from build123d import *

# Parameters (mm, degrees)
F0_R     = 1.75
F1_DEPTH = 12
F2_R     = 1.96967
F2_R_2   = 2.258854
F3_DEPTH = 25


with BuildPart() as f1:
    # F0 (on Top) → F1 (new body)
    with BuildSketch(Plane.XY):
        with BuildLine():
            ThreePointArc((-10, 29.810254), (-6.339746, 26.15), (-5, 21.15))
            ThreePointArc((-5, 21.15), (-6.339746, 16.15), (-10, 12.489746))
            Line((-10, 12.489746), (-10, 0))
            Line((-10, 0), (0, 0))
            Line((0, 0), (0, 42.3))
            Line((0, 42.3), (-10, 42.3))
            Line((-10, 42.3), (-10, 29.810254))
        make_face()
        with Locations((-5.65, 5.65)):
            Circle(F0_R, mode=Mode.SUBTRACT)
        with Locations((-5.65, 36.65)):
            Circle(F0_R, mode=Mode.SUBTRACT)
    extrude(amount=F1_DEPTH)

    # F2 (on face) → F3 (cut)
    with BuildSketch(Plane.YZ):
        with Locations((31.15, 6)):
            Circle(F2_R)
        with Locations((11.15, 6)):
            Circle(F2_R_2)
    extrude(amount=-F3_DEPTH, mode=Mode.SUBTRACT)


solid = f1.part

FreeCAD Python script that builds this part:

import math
import FreeCAD as App
import Part
import Sketcher
Q = App.Units.Quantity

doc = App.newDocument("Part")
body = doc.addObject("PartDesign::Body", "Body")

# Sketch on XY plane
sketch1 = body.newObject("Sketcher::SketchObject", "Sketch")
sketch1.AttachmentSupport = (doc.getObject("XY_Plane"), [""])
sketch1.MapMode = "FlatFace"
sketch1.addGeometry([
    Part.ArcOfCircle(Part.Circle(App.Vector(-15, 21.1, 0), App.Vector(0, 0, 1), 10), math.radians(0), math.radians(60)),  # 0
    Part.ArcOfCircle(Part.Circle(App.Vector(-15, 21.2, 0), App.Vector(0, 0, 1), 10), math.radians(-60), math.radians(0)),  # 1
    Part.LineSegment(App.Vector(-10, 12.5, 0), App.Vector(-10, 0, 0)),  # 2
    Part.LineSegment(App.Vector(-10, 0, 0), App.Vector(0, 0, 0)),  # 3
    Part.LineSegment(App.Vector(0, 0, 0), App.Vector(0, 42.3, 0)),  # 4
    Part.LineSegment(App.Vector(0, 42.3, 0), App.Vector(-10, 42.3, 0)),  # 5
    Part.LineSegment(App.Vector(-10, 42.3, 0), App.Vector(-10, 29.8, 0)),  # 6
    Part.Circle(App.Vector(-5.7, 5.7, 0), App.Vector(0, 0, 1), 1.8),  # 7
    Part.Circle(App.Vector(-5.7, 36.6, 0), App.Vector(0, 0, 1), 1.8),  # 8
], False)
sketch1.addConstraint([
    Sketcher.Constraint("Tangent", 0, 1, 1, 2),
    Sketcher.Constraint("Coincident", 1, 1, 2, 1),
    Sketcher.Constraint("Coincident", 2, 2, 3, 1),
    Sketcher.Constraint("Coincident", 3, 2, 4, 1),
    Sketcher.Constraint("Coincident", 4, 2, 5, 1),
    Sketcher.Constraint("Coincident", 5, 2, 6, 1),
    Sketcher.Constraint("Coincident", 6, 2, 0, 2),
    Sketcher.Constraint("Vertical", 2),
    Sketcher.Constraint("Horizontal", 3),
    Sketcher.Constraint("Vertical", 4),
    Sketcher.Constraint("Horizontal", 5),
    Sketcher.Constraint("Vertical", 6),
    Sketcher.Constraint("Coincident", 3, 2, -1, 1),
    Sketcher.Constraint("Equal", 0, 1),
    Sketcher.Constraint("Equal", 7, 8),
    Sketcher.Constraint("Horizontal", 1, 3, 0, 1),
    Sketcher.Constraint("Vertical", 7, 3, 8, 3),
    Sketcher.Constraint("Vertical", 2, 2, 5, 2),
    Sketcher.Constraint("Equal", 2, 6),
    Sketcher.Constraint("Radius", 0, Q("10 mm")),
    Sketcher.Constraint("Diameter", 7, Q("3.5 mm")),
    Sketcher.Constraint("DistanceX", 3, 1, 3, 2, Q("10 mm")),
    Sketcher.Constraint("DistanceY", 4, 1, 4, 2, Q("42.3 mm")),
    Sketcher.Constraint("DistanceX", 0, 3, -1, 1, Q("15 mm")),
    Sketcher.Constraint("DistanceY", 7, 3, 8, 3, Q("31 mm")),
    Sketcher.Constraint("DistanceY", 7, 3, 0, 3, Q("15.5 mm")),
    Sketcher.Constraint("DistanceX", 7, 3, -1, 1, Q("5.65 mm")),
])
pad1 = body.newObject("PartDesign::Pad", "Pad")
pad1.Profile = sketch1
pad1.Length = 12

# Sketch on YZ plane
sketch2 = body.newObject("Sketcher::SketchObject", "Sketch001")
sketch2.AttachmentSupport = (doc.getObject("YZ_Plane"), [""])
sketch2.MapMode = "FlatFace"
sketch2.addGeometry([
    Part.Circle(App.Vector(31.1, 6, 0), App.Vector(0, 0, 1), 2),
    Part.Circle(App.Vector(11.2, 6, 0), App.Vector(0, 0, 1), 2.3),
], False)
sketch2.addConstraint([
    Sketcher.Constraint("Horizontal", 0, 3, 1, 3),
    Sketcher.Constraint("DistanceY", -1, 1, 0, 3, Q("6 mm")),
    Sketcher.Constraint("DistanceX", 1, 3, 0, 3, Q("20 mm")),
    Sketcher.Constraint("Diameter", 0, Q("3.93934 mm")),
    Sketcher.Constraint("DistanceX", -1, 1, 0, 3, Q("31.15 mm")),
    Sketcher.Constraint("Diameter", 1, Q("4.517708 mm")),
])
pocket1 = body.newObject("PartDesign::Pocket", "Pocket")
pocket1.Profile = sketch2
pocket1.Length = 25

doc.recompute()
